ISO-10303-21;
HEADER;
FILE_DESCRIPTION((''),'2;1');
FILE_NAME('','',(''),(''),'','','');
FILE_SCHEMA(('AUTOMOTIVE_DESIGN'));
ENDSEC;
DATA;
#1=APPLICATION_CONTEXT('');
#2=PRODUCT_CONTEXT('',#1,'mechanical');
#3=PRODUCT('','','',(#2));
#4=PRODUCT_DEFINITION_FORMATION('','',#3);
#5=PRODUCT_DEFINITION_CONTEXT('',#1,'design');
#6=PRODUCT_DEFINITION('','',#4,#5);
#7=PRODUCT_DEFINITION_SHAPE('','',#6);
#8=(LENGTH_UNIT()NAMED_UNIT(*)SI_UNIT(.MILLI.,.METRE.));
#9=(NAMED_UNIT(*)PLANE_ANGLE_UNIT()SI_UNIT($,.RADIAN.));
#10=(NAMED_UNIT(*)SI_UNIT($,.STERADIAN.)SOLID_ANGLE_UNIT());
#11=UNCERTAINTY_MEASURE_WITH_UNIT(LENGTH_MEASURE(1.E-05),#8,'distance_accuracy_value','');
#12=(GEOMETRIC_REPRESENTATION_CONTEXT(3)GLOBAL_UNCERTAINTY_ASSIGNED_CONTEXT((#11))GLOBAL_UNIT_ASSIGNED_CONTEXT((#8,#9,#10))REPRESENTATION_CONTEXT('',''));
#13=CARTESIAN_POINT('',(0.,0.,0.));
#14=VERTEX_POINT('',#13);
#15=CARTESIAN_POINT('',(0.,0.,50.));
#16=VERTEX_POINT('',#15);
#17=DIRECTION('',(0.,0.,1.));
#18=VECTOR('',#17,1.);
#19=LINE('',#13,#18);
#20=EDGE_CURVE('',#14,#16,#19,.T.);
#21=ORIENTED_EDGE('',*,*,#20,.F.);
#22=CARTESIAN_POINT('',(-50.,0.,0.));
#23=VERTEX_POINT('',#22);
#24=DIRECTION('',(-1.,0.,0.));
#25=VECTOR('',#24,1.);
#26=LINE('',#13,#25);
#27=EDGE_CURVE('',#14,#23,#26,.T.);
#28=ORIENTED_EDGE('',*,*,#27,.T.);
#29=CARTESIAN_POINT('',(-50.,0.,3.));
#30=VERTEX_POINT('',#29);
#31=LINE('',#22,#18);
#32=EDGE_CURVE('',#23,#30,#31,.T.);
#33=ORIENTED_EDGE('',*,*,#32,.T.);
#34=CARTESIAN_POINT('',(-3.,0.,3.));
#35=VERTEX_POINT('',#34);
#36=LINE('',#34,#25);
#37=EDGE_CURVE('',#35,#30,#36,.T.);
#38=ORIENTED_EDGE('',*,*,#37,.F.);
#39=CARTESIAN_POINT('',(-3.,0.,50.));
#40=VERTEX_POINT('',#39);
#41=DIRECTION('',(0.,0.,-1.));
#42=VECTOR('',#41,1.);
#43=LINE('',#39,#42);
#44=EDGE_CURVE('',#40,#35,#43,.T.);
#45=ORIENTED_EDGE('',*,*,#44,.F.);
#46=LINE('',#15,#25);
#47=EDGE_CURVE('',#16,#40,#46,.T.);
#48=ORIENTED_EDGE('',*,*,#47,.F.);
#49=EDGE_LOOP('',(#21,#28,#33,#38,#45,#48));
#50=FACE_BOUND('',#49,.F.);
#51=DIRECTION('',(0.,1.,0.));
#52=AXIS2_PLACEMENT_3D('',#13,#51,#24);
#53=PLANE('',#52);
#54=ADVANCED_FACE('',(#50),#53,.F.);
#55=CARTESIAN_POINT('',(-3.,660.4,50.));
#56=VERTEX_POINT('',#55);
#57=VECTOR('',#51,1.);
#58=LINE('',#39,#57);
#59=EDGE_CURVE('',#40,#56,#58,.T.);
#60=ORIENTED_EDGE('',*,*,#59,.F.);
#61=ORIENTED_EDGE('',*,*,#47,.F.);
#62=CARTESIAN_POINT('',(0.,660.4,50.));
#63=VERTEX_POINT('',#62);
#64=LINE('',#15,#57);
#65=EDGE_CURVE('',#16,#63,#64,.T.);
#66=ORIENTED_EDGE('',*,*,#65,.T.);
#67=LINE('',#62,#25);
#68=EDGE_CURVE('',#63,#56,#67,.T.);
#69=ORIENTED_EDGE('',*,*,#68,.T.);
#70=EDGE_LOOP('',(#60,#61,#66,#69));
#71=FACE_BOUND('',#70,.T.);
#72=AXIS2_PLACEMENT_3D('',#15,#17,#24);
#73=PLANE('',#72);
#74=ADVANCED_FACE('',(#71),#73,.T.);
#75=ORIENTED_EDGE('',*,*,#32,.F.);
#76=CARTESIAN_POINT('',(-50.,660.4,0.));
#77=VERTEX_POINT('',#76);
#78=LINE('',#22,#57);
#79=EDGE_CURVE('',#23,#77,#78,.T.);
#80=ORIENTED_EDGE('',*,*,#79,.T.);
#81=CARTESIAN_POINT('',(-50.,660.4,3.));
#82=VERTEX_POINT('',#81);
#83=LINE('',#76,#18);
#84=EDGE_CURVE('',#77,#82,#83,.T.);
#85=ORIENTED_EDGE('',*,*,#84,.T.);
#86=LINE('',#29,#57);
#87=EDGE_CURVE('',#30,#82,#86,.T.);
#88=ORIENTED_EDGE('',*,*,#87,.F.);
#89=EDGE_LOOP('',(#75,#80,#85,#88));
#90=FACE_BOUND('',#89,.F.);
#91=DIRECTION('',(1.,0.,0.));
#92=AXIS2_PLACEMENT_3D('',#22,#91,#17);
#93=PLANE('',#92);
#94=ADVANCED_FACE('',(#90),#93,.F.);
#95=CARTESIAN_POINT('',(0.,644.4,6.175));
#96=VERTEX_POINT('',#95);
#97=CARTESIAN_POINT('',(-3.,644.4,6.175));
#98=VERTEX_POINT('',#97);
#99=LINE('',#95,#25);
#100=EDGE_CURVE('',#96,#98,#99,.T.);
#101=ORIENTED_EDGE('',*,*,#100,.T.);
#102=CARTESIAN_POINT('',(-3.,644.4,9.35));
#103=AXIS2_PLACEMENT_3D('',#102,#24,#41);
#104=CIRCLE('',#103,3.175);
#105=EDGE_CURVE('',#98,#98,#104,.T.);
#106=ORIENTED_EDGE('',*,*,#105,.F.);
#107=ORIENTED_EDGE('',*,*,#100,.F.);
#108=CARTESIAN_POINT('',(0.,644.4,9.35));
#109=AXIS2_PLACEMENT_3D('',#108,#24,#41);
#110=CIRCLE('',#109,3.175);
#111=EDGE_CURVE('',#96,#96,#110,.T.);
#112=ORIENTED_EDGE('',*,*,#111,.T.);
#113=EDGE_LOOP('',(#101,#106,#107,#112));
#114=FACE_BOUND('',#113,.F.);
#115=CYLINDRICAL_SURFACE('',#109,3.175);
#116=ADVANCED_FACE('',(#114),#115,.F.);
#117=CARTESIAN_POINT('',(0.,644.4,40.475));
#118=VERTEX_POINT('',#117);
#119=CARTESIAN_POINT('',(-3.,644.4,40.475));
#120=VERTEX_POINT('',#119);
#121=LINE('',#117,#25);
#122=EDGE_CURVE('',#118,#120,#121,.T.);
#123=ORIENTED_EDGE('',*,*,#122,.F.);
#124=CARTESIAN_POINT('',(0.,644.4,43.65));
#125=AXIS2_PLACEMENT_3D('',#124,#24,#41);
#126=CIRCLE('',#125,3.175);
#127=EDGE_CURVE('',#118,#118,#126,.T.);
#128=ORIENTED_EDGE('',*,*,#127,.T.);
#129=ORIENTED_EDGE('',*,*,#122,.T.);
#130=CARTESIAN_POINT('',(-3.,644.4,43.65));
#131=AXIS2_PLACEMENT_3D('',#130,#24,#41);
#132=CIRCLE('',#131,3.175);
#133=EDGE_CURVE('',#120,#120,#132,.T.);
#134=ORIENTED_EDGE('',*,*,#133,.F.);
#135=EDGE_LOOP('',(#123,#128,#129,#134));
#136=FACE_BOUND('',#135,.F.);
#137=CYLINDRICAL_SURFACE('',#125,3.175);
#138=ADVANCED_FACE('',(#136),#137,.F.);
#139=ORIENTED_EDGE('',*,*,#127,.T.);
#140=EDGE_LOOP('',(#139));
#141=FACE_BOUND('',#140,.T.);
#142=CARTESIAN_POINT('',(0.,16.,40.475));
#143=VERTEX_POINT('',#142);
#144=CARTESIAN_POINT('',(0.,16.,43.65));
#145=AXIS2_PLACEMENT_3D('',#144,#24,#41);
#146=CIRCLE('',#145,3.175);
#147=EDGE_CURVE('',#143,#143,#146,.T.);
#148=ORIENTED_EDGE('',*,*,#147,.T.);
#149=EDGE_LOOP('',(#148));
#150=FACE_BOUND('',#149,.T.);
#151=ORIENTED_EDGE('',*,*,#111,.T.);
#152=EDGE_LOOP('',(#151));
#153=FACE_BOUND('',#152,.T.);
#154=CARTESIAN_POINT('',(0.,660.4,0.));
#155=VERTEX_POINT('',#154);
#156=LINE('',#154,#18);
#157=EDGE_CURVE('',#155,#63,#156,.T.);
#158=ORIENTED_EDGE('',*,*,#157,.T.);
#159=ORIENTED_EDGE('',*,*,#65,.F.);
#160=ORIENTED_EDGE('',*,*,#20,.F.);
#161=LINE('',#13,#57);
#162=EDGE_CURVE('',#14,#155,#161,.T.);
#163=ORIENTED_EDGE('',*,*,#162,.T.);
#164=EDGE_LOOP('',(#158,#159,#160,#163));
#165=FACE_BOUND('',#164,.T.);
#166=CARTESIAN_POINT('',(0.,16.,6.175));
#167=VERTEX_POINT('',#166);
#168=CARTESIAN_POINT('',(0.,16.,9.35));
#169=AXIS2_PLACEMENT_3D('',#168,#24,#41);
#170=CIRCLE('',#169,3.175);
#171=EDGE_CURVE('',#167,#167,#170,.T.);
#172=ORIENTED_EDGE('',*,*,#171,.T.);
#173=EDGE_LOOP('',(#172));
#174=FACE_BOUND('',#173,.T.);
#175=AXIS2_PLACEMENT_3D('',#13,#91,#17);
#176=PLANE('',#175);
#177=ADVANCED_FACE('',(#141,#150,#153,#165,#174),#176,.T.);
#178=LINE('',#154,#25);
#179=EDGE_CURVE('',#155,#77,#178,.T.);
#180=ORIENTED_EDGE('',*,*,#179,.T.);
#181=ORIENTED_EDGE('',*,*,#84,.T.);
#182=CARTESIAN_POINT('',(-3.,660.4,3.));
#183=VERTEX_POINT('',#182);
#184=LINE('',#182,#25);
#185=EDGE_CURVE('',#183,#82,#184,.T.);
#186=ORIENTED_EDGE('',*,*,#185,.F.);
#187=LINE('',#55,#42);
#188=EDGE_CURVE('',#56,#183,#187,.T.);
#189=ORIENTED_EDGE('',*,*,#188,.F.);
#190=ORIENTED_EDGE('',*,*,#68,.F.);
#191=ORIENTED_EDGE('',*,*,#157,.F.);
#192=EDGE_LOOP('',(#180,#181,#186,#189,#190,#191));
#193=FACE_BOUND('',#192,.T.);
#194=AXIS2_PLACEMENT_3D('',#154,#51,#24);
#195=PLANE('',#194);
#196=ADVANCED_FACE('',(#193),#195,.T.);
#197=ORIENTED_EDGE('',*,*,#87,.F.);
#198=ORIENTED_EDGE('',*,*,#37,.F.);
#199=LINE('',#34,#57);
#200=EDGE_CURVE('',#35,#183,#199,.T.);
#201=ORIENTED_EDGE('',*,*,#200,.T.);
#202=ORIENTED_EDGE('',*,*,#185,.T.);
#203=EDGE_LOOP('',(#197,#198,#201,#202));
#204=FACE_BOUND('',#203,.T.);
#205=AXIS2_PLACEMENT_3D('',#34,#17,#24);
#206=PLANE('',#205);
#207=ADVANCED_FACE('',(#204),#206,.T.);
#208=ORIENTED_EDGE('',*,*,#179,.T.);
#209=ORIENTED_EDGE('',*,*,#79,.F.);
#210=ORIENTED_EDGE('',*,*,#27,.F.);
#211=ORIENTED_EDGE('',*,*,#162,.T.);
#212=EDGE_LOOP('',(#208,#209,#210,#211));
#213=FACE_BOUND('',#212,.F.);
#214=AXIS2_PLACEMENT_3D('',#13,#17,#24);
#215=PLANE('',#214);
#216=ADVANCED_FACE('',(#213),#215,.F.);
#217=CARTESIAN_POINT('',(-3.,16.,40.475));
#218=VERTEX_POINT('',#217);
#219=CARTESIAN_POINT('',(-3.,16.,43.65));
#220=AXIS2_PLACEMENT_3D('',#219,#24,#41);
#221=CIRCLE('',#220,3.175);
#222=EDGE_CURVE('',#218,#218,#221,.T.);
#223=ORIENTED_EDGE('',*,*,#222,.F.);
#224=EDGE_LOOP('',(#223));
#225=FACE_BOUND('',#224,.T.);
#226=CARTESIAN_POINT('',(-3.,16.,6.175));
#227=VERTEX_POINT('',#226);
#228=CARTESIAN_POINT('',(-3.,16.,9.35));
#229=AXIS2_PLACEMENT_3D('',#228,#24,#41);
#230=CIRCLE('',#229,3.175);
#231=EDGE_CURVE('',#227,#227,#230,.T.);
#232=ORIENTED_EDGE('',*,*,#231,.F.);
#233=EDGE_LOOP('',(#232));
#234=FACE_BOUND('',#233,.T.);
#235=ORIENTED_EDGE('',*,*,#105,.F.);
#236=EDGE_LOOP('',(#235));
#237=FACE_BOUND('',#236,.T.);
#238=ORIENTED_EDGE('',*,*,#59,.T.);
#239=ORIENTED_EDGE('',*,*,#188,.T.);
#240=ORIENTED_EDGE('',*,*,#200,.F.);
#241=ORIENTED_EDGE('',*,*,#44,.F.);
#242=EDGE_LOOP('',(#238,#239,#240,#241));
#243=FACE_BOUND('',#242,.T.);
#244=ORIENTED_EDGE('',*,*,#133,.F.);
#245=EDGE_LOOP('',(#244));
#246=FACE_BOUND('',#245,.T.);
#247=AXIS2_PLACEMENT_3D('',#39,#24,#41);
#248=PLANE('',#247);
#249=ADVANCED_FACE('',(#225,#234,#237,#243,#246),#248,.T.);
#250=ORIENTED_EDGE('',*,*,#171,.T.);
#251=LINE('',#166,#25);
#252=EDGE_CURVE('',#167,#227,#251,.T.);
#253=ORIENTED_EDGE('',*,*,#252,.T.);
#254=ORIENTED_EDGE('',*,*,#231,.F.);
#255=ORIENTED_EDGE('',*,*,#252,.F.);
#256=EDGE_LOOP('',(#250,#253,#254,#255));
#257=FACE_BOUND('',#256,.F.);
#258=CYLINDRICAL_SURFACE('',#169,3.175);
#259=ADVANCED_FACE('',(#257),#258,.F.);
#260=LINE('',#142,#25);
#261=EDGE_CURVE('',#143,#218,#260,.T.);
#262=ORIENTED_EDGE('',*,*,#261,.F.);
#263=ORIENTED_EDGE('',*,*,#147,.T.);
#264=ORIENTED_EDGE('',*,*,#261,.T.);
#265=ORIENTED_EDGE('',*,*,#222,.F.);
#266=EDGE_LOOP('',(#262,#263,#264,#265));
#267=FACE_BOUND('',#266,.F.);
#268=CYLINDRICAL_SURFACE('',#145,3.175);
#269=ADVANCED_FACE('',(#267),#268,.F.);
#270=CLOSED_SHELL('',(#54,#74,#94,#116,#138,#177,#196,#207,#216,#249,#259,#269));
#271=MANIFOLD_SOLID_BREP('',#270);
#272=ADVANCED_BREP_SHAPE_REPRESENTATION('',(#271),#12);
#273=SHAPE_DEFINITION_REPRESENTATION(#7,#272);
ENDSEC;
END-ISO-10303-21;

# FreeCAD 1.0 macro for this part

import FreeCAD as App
import Part
import Sketcher
from FreeCAD import Vector
Q = App.Units.Quantity

doc = App.newDocument("Part")
params = doc.addObject("Spreadsheet::Sheet", "Params")
for row, (alias, value) in enumerate([
    ("pad1_length", "26 in"),
    ("sketch2_diameter", "0.25 in"),
    ("hole_diameter", "0.25 in"),
    ("hole_depth", "0.1181102 in"),
], start=1):
    params.set(f"A{row}", alias)
    params.set(f"B{row}", "=" + value)
    params.setAlias(f"B{row}", alias)

body = doc.addObject("PartDesign::Body", "Body")

sketch1 = doc.addObject("Sketcher::SketchObject", "Sketch")
body.addObject(sketch1)
sketch1.AttachmentSupport = (doc.XZ_Plane, [""])
sketch1.MapMode = "FlatFace"
sketch1.addGeometry([
    Part.LineSegment(Vector(0, 50, 0), Vector(0, 0, 0)),
    Part.LineSegment(Vector(0, 0, 0), Vector(-50, 0, 0)),
    Part.LineSegment(Vector(-50, 0, 0), Vector(-50, 3, 0)),
    Part.LineSegment(Vector(-50, 3, 0), Vector(-3, 3, 0)),
    Part.LineSegment(Vector(-3, 3, 0), Vector(-3, 50, 0)),
    Part.LineSegment(Vector(-3, 50, 0), Vector(0, 50, 0)),
], False)
sketch1.addConstraint([
    Sketcher.Constraint("Coincident", 0, 2, 1, 1),
    Sketcher.Constraint("Coincident", 1, 2, 2, 1),
    Sketcher.Constraint("Coincident", 2, 2, 3, 1),
    Sketcher.Constraint("Coincident", 3, 2, 4, 1),
    Sketcher.Constraint("Coincident", 4, 2, 5, 1),
    Sketcher.Constraint("Coincident", 5, 2, 0, 1),
    Sketcher.Constraint("Vertical", 0),
    Sketcher.Constraint("Horizontal", 1),
    Sketcher.Constraint("Vertical", 2),
    Sketcher.Constraint("Horizontal", 3),
    Sketcher.Constraint("Vertical", 4),
    Sketcher.Constraint("Horizontal", 5),
    Sketcher.Constraint("Coincident", 0, 2, -1, 1),
    Sketcher.Constraint("Equal", 1, 0),
    Sketcher.Constraint("Equal", 5, 2),
    Sketcher.Constraint("DistanceX", 1, 2, 1, 1, Q("1.9685 in")),
    Sketcher.Constraint("DistanceX", 5, 1, 5, 2, Q("0.1181 in")),
])
pad1 = doc.addObject("PartDesign::Pad", "Pad")
body.addObject(pad1)
pad1.Profile = sketch1
pad1.setExpression("Length", "Params.pad1_length")
pad1.Reversed = True

sketch2 = doc.addObject("Sketcher::SketchObject", "Sketch001")
body.addObject(sketch2)
sketch2.AttachmentSupport = (doc.YZ_Plane, [""])
sketch2.MapMode = "FlatFace"
sketch2.addGeometry([
    Part.Circle(Vector(16, 43.65, 0), Vector(0, 0, 1), 3.175),
    Part.Circle(Vector(16, 9.35, 0), Vector(0, 0, 1), 3.175),
    Part.Circle(Vector(644.4, 43.65, 0), Vector(0, 0, 1), 3.175),
    Part.Circle(Vector(644.4, 9.35, 0), Vector(0, 0, 1), 3.175),
], False)
sketch2.addConstraint([
    Sketcher.Constraint("Equal", 0, 1),
    Sketcher.Constraint("Equal", 1, 2),
    Sketcher.Constraint("Equal", 2, 3),
    Sketcher.Constraint("Horizontal", 0, 3, 2, 3),
    Sketcher.Constraint("Horizontal", 1, 3, 3, 3),
    Sketcher.Constraint("Vertical", 0, 3, 1, 3),
    Sketcher.Constraint("Vertical", 2, 3, 3, 3),
    Sketcher.Constraint("Diameter", 0, Q("0.25 in")),
    Sketcher.Constraint("DistanceY", -1, 1, 0, 3, Q("1.7185 in")),
    Sketcher.Constraint("DistanceY", -1, 1, 1, 3, Q("0.3681 in")),
    Sketcher.Constraint("DistanceX", -1, 1, 0, 3, Q("16 mm")),
    Sketcher.Constraint("DistanceX", -1, 1, 2, 3, Q("644.4 mm")),
])
sketch2.setExpression("Constraints[7]", "Params.sketch2_diameter")
doc.recompute()
hole = doc.addObject("PartDesign::Hole", "Hole")
body.addObject(hole)
hole.Profile = sketch2
hole.ThreadType = "None"
hole.setExpression("Diameter", "Params.hole_diameter")
hole.DepthType = "Dimension"
hole.setExpression("Depth", "Params.hole_depth")
hole.DrillPoint = "Angled"
hole.DrillPointAngle = 118

doc.recompute()
